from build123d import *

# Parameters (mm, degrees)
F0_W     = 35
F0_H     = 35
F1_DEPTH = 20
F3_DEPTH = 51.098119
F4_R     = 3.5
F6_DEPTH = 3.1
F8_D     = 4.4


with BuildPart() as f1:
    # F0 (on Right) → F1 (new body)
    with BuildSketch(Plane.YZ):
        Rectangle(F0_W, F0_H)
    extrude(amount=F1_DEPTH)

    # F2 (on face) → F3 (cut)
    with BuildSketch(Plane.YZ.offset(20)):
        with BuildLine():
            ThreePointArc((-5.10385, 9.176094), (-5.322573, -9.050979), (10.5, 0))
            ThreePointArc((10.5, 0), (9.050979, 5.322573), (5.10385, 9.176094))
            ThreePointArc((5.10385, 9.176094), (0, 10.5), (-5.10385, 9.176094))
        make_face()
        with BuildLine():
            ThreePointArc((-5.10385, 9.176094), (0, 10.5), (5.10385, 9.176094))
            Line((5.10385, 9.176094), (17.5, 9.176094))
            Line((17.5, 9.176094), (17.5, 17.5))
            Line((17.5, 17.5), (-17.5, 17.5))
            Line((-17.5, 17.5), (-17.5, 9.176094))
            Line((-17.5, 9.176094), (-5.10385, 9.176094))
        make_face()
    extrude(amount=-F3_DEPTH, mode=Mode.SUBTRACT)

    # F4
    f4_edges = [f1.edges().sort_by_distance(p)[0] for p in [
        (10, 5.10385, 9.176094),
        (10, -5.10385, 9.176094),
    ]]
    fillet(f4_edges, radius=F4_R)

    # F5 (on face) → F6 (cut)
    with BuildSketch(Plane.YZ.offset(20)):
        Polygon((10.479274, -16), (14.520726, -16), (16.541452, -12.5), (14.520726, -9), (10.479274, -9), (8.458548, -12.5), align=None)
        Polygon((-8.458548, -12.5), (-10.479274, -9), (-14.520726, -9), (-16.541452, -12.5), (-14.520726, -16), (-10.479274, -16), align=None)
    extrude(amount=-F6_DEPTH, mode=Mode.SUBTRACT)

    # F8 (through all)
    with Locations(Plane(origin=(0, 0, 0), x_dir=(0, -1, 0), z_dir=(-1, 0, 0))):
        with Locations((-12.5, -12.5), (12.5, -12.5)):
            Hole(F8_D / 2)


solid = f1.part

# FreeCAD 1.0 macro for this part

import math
import FreeCAD as App
import Part
import Sketcher
from FreeCAD import Vector
Q = App.Units.Quantity


def edges_at(feature, points):
    """Names of the edges that pass closest to the given points."""
    edges = feature.Shape.Edges
    near = lambda p: min(range(len(edges)), key=lambda i: edges[i].distToShape(Part.Vertex(*p))[0])
    return sorted({f"Edge{near(p) + 1}" for p in points})

doc = App.newDocument("Part")
body = doc.addObject("PartDesign::Body", "Body")

# Sketch on YZ plane
sketch1 = body.newObject("Sketcher::SketchObject", "Sketch")
sketch1.AttachmentSupport = (doc.getObject("YZ_Plane"), [""])
sketch1.MapMode = "FlatFace"
sketch1.addGeometry([
    Part.LineSegment(Vector(-18, 18, 0), Vector(-18, -18, 0)),
    Part.LineSegment(Vector(-18, -18, 0), Vector(18, -18, 0)),
    Part.LineSegment(Vector(18, -18, 0), Vector(18, 18, 0)),
    Part.LineSegment(Vector(18, 18, 0), Vector(-18, 18, 0)),
], False)
sketch1.addConstraint([
    Sketcher.Constraint("Coincident", 0, 2, 1, 1),
    Sketcher.Constraint("Coincident", 1, 2, 2, 1),
    Sketcher.Constraint("Coincident", 2, 2, 3, 1),
    Sketcher.Constraint("Coincident", 3, 2, 0, 1),
    Sketcher.Constraint("Vertical", 0),
    Sketcher.Constraint("Horizontal", 1),
    Sketcher.Constraint("Vertical", 2),
    Sketcher.Constraint("Horizontal", 3),
    Sketcher.Constraint("Symmetric", 0, 2, 2, 2, -1, 1),
    Sketcher.Constraint("Equal", 3, 0),
    Sketcher.Constraint("DistanceX", 1, 1, 1, 2, 35.0),
])
pad1 = body.newObject("PartDesign::Pad", "Pad")
pad1.Profile = sketch1
pad1.Length = 20

# Sketch on YZ plane
sketch2 = body.newObject("Sketcher::SketchObject", "Sketch001")
sketch2.AttachmentSupport = (doc.getObject("YZ_Plane"), [""])
sketch2.MapMode = "FlatFace"
sketch2.AttachmentOffset = App.Placement(Vector(0, 0, 20), App.Rotation())
sketch2.addGeometry([
    Part.ArcOfCircle(Part.Circle(Vector(0, 0, 0), Vector(0, 0, 1), 10), math.radians(119), math.radians(360)),  # 0
    Part.ArcOfCircle(Part.Circle(Vector(0, 0, 0), Vector(0, 0, 1), 10), math.radians(0), math.radians(61)),  # 1
    Part.LineSegment(Vector(5, 9, 0), Vector(18, 9, 0)),  # 2
    Part.LineSegment(Vector(18, 9, 0), Vector(18, 18, 0)),  # 3
    Part.LineSegment(Vector(18, 18, 0), Vector(-18, 18, 0)),  # 4
    Part.LineSegment(Vector(-18, 18, 0), Vector(-18, 9, 0)),  # 5
    Part.LineSegment(Vector(-18, 9, 0), Vector(-5, 9, 0)),  # 6
], False)
sketch2.addConstraint([
    Sketcher.Constraint("Tangent", 0, 2, 1, 1),
    Sketcher.Constraint("Coincident", 1, 2, 2, 1),
    Sketcher.Constraint("Coincident", 2, 2, 3, 1),
    Sketcher.Constraint("Coincident", 3, 2, 4, 1),
    Sketcher.Constraint("Coincident", 4, 2, 5, 1),
    Sketcher.Constraint("Coincident", 5, 2, 6, 1),
    Sketcher.Constraint("Coincident", 6, 2, 0, 1),
    Sketcher.Constraint("Horizontal", 2),
    Sketcher.Constraint("Vertical", 3),
    Sketcher.Constraint("Horizontal", 4),
    Sketcher.Constraint("Vertical", 5),
    Sketcher.Constraint("Horizontal", 6),
    Sketcher.Constraint("Coincident", 0, 3, -1, 1),
    Sketcher.Constraint("Symmetric", 2, 2, 5, 2, -2),
    Sketcher.Constraint("PointOnObject", 0, 2, -1),
    Sketcher.Constraint("Equal", 2, 6),
    Sketcher.Constraint("Radius", 0, 10.5),
    Sketcher.Constraint("DistanceX", 4, 2, 4, 1, 35.0),
    Sketcher.Constraint("DistanceY", -1, 1, 3, 2, 17.5),
    Sketcher.Constraint("DistanceX", 2, 1, 2, 2, 12.39615),
])
pocket1 = body.newObject("PartDesign::Pocket", "Pocket")
pocket1.Profile = sketch2
pocket1.Length = 51.098119
doc.recompute()

fillet = body.newObject("PartDesign::Fillet", "Fillet")
fillet.Base = (pocket1, edges_at(pocket1, [(10, 5.104, 9.176), (10, -5.104, 9.176)]))
fillet.Radius = 3.5

# Sketch on YZ plane
sketch3 = body.newObject("Sketcher::SketchObject", "Sketch002")
sketch3.AttachmentSupport = (doc.getObject("YZ_Plane"), [""])
sketch3.MapMode = "FlatFace"
sketch3.AttachmentOffset = App.Placement(Vector(0, 0, 20), App.Rotation())
sketch3.addGeometry([
    Part.LineSegment(Vector(10.5, -16, 0), Vector(14.5, -16, 0)),  # 0
    Part.LineSegment(Vector(14.5, -16, 0), Vector(16.5, -12.5, 0)),  # 1
    Part.LineSegment(Vector(16.5, -12.5, 0), Vector(14.5, -9, 0)),  # 2
    Part.LineSegment(Vector(14.5, -9, 0), Vector(10.5, -9, 0)),  # 3
    Part.LineSegment(Vector(10.5, -9, 0), Vector(8.5, -12.5, 0)),  # 4
    Part.LineSegment(Vector(8.5, -12.5, 0), Vector(10.5, -16, 0)),  # 5
    Part.LineSegment(Vector(-8.5, -12.5, 0), Vector(-10.5, -9, 0)),  # 6
    Part.LineSegment(Vector(-10.5, -9, 0), Vector(-14.5, -9, 0)),  # 7
    Part.LineSegment(Vector(-14.5, -9, 0), Vector(-16.5, -12.5, 0)),  # 8
    Part.LineSegment(Vector(-16.5, -12.5, 0), Vector(-14.5, -16, 0)),  # 9
    Part.LineSegment(Vector(-14.5, -16, 0), Vector(-10.5, -16, 0)),  # 10
    Part.LineSegment(Vector(-10.5, -16, 0), Vector(-8.5, -12.5, 0)),  # 11
], False)
sketch3.addConstraint([
    Sketcher.Constraint("Coincident", 0, 2, 1, 1),
    Sketcher.Constraint("Coincident", 1, 2, 2, 1),
    Sketcher.Constraint("Coincident", 2, 2, 3, 1),
    Sketcher.Constraint("Coincident", 3, 2, 4, 1),
    Sketcher.Constraint("Coincident", 4, 2, 5, 1),
    Sketcher.Constraint("Coincident", 5, 2, 0, 1),
    Sketcher.Constraint("Coincident", 6, 2, 7, 1),
    Sketcher.Constraint("Coincident", 7, 2, 8, 1),
    Sketcher.Constraint("Coincident", 8, 2, 9, 1),
    Sketcher.Constraint("Coincident", 9, 2, 10, 1),
    Sketcher.Constraint("Coincident", 10, 2, 11, 1),
    Sketcher.Constraint("Coincident", 11, 2, 6, 1),
    Sketcher.Constraint("Horizontal", 0),
    Sketcher.Constraint("Horizontal", 3),
    Sketcher.Constraint("Horizontal", 7),
    Sketcher.Constraint("Horizontal", 10),
    Sketcher.Constraint("Symmetric", 3, 2, 6, 2, -2),
    Sketcher.Constraint("Symmetric", 1, 2, 8, 2, -2),
    Sketcher.Constraint("Symmetric", 0, 2, 9, 2, -2),
    Sketcher.Constraint("Symmetric", 4, 2, 11, 2, -2),
    Sketcher.Constraint("Parallel", 1, 4),
    Sketcher.Constraint("Parallel", 2, 5),
    Sketcher.Constraint("Parallel", 5, 6),
    Sketcher.Constraint("Parallel", 4, 8),
    Sketcher.Constraint("Parallel", 8, 11),
    Sketcher.Constraint("Horizontal", 1, 2, 4, 2),
    Sketcher.Constraint("Vertical", 0, 2, 2, 2),
    Sketcher.Constraint("Angle", 1, Q("59.999999 deg")),
    Sketcher.Constraint("DistanceY", 0, 2, -1, 1, 16.0),
    Sketcher.Constraint("DistanceY", 2, 2, -1, 1, 9.0),
    Sketcher.Constraint("DistanceX", 6, 2, 2, 2, 25.0),
    Sketcher.Constraint("DistanceX", 0, 1, 0, 2, 4.041452),
])
pocket2 = body.newObject("PartDesign::Pocket", "Pocket001")
pocket2.Profile = sketch3
pocket2.Length = 3.1

# Sketch on YZ plane
sketch4 = body.newObject("Sketcher::SketchObject", "Sketch003")
sketch4.AttachmentSupport = (doc.getObject("YZ_Plane"), [""])
sketch4.MapMode = "FlatFace"
sketch4.addGeometry([
    Part.Circle(Vector(12.5, -12.5, 0), Vector(0, 0, 1), 2.2),
    Part.Circle(Vector(-12.5, -12.5, 0), Vector(0, 0, 1), 2.2),
], False)
sketch4.addConstraint([
    Sketcher.Constraint("Equal", 0, 1),
    Sketcher.Constraint("Symmetric", 0, 3, 1, 3, -2),
    Sketcher.Constraint("Diameter", 0, 4.4),
    Sketcher.Constraint("DistanceX", 1, 3, 0, 3, 25.0),
    Sketcher.Constraint("DistanceY", 0, 3, -1, 1, 12.5),
])
doc.recompute()
hole = body.newObject("PartDesign::Hole", "Hole")
hole.Profile = sketch4
hole.ThreadType = "None"
hole.Diameter = 4.4
hole.DepthType = "ThroughAll"
hole.Reversed = True

doc.recompute()
